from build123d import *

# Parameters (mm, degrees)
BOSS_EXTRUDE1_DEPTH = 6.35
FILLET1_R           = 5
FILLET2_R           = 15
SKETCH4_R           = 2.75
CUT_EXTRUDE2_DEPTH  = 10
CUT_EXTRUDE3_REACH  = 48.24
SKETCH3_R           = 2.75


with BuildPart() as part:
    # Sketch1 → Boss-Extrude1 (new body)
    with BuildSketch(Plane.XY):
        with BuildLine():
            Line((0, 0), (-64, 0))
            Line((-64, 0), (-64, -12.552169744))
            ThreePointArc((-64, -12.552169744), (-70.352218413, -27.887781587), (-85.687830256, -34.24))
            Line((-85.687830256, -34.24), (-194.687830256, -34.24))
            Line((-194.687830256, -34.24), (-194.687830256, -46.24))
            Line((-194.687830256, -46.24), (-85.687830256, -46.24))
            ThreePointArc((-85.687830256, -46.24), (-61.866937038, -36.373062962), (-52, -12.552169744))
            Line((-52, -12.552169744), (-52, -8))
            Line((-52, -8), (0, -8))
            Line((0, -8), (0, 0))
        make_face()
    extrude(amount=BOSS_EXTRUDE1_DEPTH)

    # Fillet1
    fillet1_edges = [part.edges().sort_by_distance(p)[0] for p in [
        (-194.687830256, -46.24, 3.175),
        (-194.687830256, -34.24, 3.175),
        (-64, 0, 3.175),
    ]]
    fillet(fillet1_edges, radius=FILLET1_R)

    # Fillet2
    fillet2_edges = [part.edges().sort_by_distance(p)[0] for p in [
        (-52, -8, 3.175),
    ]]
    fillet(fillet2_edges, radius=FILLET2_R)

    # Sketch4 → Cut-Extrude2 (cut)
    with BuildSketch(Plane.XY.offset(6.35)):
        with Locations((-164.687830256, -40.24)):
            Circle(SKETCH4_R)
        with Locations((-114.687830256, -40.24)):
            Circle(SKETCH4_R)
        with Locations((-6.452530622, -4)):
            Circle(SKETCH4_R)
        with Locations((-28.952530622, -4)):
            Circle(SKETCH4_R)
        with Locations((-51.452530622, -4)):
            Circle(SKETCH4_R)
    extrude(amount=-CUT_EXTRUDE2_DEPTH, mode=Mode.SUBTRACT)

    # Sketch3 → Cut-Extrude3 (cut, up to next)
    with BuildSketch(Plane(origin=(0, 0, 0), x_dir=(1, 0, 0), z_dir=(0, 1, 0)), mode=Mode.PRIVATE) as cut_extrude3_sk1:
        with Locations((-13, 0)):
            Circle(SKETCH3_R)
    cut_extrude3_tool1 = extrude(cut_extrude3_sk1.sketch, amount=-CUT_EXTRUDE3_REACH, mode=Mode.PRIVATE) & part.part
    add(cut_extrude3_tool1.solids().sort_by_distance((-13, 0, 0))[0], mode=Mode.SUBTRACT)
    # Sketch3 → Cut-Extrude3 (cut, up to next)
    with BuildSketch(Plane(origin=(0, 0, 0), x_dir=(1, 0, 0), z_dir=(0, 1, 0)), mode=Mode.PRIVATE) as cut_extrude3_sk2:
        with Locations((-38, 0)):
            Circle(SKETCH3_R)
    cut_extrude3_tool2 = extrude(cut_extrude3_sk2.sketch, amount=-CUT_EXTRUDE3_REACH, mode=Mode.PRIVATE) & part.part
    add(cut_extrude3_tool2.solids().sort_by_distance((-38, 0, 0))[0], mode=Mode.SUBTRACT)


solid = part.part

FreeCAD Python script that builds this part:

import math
import FreeCAD as App
import Part
import Sketcher

V = App.Vector


def edges_at(feature, points):
    """Names of the edges that pass closest to the given points."""
    edges = feature.Shape.Edges
    near = lambda p: min(range(len(edges)), key=lambda i: edges[i].distToShape(Part.Vertex(*p))[0])
    return sorted({f"Edge{near(p) + 1}" for p in points})

doc = App.newDocument("Part")
params = doc.addObject("Spreadsheet::Sheet", "Params")
for row, (alias, value) in enumerate([
    ("sketch1_width", "64 mm"),
    ("sketch1_width2", "109 mm"),
    ("sketch1_width3", "52 mm"),
    ("sketch1_height", "8 mm"),
    ("pad1_length", "6.35 mm"),
    ("fillet_radius", "5 mm"),
    ("fillet2_radius", "15 mm"),
    ("sketch2_diameter", "5.5 mm"),
    ("pocket1_length", "10 mm"),
    ("sketch3_diameter", "5.5 mm"),
    ("sketch4_diameter", "5.5 mm"),
    ("pocket3_length", "8.229841 mm"),
], start=1):
    params.set(f"A{row}", alias)
    params.set(f"B{row}", "=" + value)
    params.setAlias(f"B{row}", alias)

body = doc.addObject("PartDesign::Body", "Body")

sketch1 = doc.addObject("Sketcher::SketchObject", "Sketch")
body.addObject(sketch1)
sketch1.AttachmentSupport = (doc.XY_Plane, [""])
sketch1.MapMode = "FlatFace"
sketch1.addGeometry([
    Part.LineSegment(V(0, 0, 0), V(-64, 0, 0)),
    Part.LineSegment(V(-64, 0, 0), V(-64, -12.6, 0)),
    Part.ArcOfCircle(Part.Circle(V(-85.7, -12.6, 0), V(0, 0, 1), 21.7), math.radians(-90), math.radians(0)),
    Part.LineSegment(V(-85.7, -34.2, 0), V(-194.7, -34.2, 0)),
    Part.LineSegment(V(-194.7, -34.2, 0), V(-194.7, -46.2, 0)),
    Part.LineSegment(V(-194.7, -46.2, 0), V(-85.7, -46.2, 0)),
    Part.ArcOfCircle(Part.Circle(V(-85.7, -12.6, 0), V(0, 0, 1), 33.7), math.radians(-90), math.radians(0)),
    Part.LineSegment(V(-52, -12.6, 0), V(-52, -8, 0)),
    Part.LineSegment(V(-52, -8, 0), V(0, -8, 0)),
    Part.LineSegment(V(0, -8, 0), V(0, 0, 0)),
], False)
sketch1.addConstraint([
    Sketcher.Constraint("Coincident", 0, 2, 1, 1),
    Sketcher.Constraint("Tangent", 1, 2, 2, 2),
    Sketcher.Constraint("Tangent", 2, 1, 3, 1),
    Sketcher.Constraint("Coincident", 3, 2, 4, 1),
    Sketcher.Constraint("Coincident", 4, 2, 5, 1),
    Sketcher.Constraint("Tangent", 5, 2, 6, 1),
    Sketcher.Constraint("Tangent", 6, 2, 7, 1),
    Sketcher.Constraint("Coincident", 7, 2, 8, 1),
    Sketcher.Constraint("Coincident", 8, 2, 9, 1),
    Sketcher.Constraint("Coincident", 9, 2, 0, 1),
    Sketcher.Constraint("Horizontal", 0),
    Sketcher.Constraint("Vertical", 1),
    Sketcher.Constraint("Horizontal", 3),
    Sketcher.Constraint("Vertical", 4),
    Sketcher.Constraint("Horizontal", 5),
    Sketcher.Constraint("Vertical", 7),
    Sketcher.Constraint("Horizontal", 8),
    Sketcher.Constraint("Vertical", 9),
    Sketcher.Constraint("Coincident", 9, 2, -1, 1),
    Sketcher.Constraint("Coincident", 6, 3, 2, 3),
    Sketcher.Constraint("DistanceX", 0, 2, 0, 1, 64.0),
    Sketcher.Constraint("DistanceX", 3, 2, 3, 1, 109.0),
    Sketcher.Constraint("DistanceX", 8, 1, 8, 2, 52.0),
    Sketcher.Constraint("DistanceY", 9, 1, 9, 2, 8.0),
    Sketcher.Constraint("DistanceY", 2, 1, -1, 1, 34.24),
    Sketcher.Constraint("Radius", 2, 21.68783),
])
sketch1.setExpression("Constraints[20]", "Params.sketch1_width")
sketch1.setExpression("Constraints[21]", "Params.sketch1_width2")
sketch1.setExpression("Constraints[22]", "Params.sketch1_width3")
sketch1.setExpression("Constraints[23]", "Params.sketch1_height")
pad1 = doc.addObject("PartDesign::Pad", "Pad")
body.addObject(pad1)
pad1.Profile = sketch1
pad1.setExpression("Length", "Params.pad1_length")
doc.recompute()

fillet = doc.addObject("PartDesign::Fillet", "Fillet")
body.addObject(fillet)
fillet.Base = (pad1, edges_at(pad1, [(-194.688, -46.24, 3.175), (-194.688, -34.24, 3.175), (-64, 0, 3.175)]))
fillet.setExpression("Radius", "Params.fillet_radius")
doc.recompute()

fillet2 = doc.addObject("PartDesign::Fillet", "Fillet001")
body.addObject(fillet2)
fillet2.Base = (fillet, edges_at(fillet, [(-52, -8, 3.175)]))
fillet2.setExpression("Radius", "Params.fillet2_radius")

sketch2 = doc.addObject("Sketcher::SketchObject", "Sketch001")
body.addObject(sketch2)
sketch2.AttachmentSupport = (doc.XY_Plane, [""])
sketch2.MapMode = "FlatFace"
sketch2.AttachmentOffset = App.Placement(V(0, 0, 6.35), App.Rotation())
sketch2.addGeometry([
    Part.Circle(V(-164.7, -40.2, 0), V(0, 0, 1), 2.8),
    Part.Circle(V(-114.7, -40.2, 0), V(0, 0, 1), 2.8),
    Part.Circle(V(-6.5, -4, 0), V(0, 0, 1), 2.8),
    Part.Circle(V(-29, -4, 0), V(0, 0, 1), 2.8),
    Part.Circle(V(-51.5, -4, 0), V(0, 0, 1), 2.8),
], False)
sketch2.addConstraint([
    Sketcher.Constraint("Equal", 0, 1),
    Sketcher.Constraint("Equal", 1, 2),
    Sketcher.Constraint("Equal", 2, 3),
    Sketcher.Constraint("Equal", 3, 4),
    Sketcher.Constraint("Horizontal", 0, 3, 1, 3),
    Sketcher.Constraint("Horizontal", 2, 3, 3, 3),
    Sketcher.Constraint("Horizontal", 3, 3, 4, 3),
    Sketcher.Constraint("Diameter", 0, 5.5),
    Sketcher.Constraint("DistanceY", 2, 3, -1, 1, 4.0),
    Sketcher.Constraint("DistanceX", 0, 3, 1, 3, 50.0),
    Sketcher.Constraint("DistanceX", 4, 3, 2, 3, 45.0),
    Sketcher.Constraint("DistanceX", 3, 3, 2, 3, 22.5),
    Sketcher.Constraint("DistanceY", 0, 3, -1, 1, 40.24),
    Sketcher.Constraint("DistanceX", 1, 3, 2, 3, 108.2353),
    Sketcher.Constraint("DistanceX", 0, 3, -1, 1, 164.68783),
])
sketch2.setExpression("Constraints[7]", "Params.sketch2_diameter")
pocket1 = doc.addObject("PartDesign::Pocket", "Pocket")
body.addObject(pocket1)
pocket1.Profile = sketch2
pocket1.setExpression("Length", "Params.pocket1_length")

sketch3 = doc.addObject("Sketcher::SketchObject", "Sketch002")
body.addObject(sketch3)
sketch3.AttachmentSupport = (doc.XZ_Plane, [""])
sketch3.MapMode = "FlatFace"
sketch3.addGeometry(Part.Circle(V(-13, 0, 0), V(0, 0, 1), 2.8), False)
sketch3.addConstraint([
    Sketcher.Constraint("PointOnObject", 0, 3, -1),
    Sketcher.Constraint("Diameter", 0, 5.5),
    Sketcher.Constraint("DistanceX", 0, 3, -1, 1, 13.0),
])
sketch3.setExpression("Constraints[1]", "Params.sketch3_diameter")
pocket2 = doc.addObject("PartDesign::Pocket", "Pocket001")
body.addObject(pocket2)
pocket2.Profile = sketch3
pocket2.Type = "UpToFirst"
pocket2.Reversed = True

sketch4 = doc.addObject("Sketcher::SketchObject", "Sketch003")
body.addObject(sketch4)
sketch4.AttachmentSupport = (doc.XZ_Plane, [""])
sketch4.MapMode = "FlatFace"
sketch4.addGeometry(Part.Circle(V(-38, 0, 0), V(0, 0, 1), 2.8), False)
sketch4.addConstraint([
    Sketcher.Constraint("PointOnObject", 0, 3, -1),
    Sketcher.Constraint("Diameter", 0, 5.5),
    Sketcher.Constraint("DistanceX", 0, 3, -1, 1, 38.0),
])
sketch4.setExpression("Constraints[1]", "Params.sketch4_diameter")
pocket3 = doc.addObject("PartDesign::Pocket", "Pocket002")
body.addObject(pocket3)
pocket3.Profile = sketch4
pocket3.setExpression("Length", "Params.pocket3_length")
pocket3.Reversed = True

doc.recompute()
